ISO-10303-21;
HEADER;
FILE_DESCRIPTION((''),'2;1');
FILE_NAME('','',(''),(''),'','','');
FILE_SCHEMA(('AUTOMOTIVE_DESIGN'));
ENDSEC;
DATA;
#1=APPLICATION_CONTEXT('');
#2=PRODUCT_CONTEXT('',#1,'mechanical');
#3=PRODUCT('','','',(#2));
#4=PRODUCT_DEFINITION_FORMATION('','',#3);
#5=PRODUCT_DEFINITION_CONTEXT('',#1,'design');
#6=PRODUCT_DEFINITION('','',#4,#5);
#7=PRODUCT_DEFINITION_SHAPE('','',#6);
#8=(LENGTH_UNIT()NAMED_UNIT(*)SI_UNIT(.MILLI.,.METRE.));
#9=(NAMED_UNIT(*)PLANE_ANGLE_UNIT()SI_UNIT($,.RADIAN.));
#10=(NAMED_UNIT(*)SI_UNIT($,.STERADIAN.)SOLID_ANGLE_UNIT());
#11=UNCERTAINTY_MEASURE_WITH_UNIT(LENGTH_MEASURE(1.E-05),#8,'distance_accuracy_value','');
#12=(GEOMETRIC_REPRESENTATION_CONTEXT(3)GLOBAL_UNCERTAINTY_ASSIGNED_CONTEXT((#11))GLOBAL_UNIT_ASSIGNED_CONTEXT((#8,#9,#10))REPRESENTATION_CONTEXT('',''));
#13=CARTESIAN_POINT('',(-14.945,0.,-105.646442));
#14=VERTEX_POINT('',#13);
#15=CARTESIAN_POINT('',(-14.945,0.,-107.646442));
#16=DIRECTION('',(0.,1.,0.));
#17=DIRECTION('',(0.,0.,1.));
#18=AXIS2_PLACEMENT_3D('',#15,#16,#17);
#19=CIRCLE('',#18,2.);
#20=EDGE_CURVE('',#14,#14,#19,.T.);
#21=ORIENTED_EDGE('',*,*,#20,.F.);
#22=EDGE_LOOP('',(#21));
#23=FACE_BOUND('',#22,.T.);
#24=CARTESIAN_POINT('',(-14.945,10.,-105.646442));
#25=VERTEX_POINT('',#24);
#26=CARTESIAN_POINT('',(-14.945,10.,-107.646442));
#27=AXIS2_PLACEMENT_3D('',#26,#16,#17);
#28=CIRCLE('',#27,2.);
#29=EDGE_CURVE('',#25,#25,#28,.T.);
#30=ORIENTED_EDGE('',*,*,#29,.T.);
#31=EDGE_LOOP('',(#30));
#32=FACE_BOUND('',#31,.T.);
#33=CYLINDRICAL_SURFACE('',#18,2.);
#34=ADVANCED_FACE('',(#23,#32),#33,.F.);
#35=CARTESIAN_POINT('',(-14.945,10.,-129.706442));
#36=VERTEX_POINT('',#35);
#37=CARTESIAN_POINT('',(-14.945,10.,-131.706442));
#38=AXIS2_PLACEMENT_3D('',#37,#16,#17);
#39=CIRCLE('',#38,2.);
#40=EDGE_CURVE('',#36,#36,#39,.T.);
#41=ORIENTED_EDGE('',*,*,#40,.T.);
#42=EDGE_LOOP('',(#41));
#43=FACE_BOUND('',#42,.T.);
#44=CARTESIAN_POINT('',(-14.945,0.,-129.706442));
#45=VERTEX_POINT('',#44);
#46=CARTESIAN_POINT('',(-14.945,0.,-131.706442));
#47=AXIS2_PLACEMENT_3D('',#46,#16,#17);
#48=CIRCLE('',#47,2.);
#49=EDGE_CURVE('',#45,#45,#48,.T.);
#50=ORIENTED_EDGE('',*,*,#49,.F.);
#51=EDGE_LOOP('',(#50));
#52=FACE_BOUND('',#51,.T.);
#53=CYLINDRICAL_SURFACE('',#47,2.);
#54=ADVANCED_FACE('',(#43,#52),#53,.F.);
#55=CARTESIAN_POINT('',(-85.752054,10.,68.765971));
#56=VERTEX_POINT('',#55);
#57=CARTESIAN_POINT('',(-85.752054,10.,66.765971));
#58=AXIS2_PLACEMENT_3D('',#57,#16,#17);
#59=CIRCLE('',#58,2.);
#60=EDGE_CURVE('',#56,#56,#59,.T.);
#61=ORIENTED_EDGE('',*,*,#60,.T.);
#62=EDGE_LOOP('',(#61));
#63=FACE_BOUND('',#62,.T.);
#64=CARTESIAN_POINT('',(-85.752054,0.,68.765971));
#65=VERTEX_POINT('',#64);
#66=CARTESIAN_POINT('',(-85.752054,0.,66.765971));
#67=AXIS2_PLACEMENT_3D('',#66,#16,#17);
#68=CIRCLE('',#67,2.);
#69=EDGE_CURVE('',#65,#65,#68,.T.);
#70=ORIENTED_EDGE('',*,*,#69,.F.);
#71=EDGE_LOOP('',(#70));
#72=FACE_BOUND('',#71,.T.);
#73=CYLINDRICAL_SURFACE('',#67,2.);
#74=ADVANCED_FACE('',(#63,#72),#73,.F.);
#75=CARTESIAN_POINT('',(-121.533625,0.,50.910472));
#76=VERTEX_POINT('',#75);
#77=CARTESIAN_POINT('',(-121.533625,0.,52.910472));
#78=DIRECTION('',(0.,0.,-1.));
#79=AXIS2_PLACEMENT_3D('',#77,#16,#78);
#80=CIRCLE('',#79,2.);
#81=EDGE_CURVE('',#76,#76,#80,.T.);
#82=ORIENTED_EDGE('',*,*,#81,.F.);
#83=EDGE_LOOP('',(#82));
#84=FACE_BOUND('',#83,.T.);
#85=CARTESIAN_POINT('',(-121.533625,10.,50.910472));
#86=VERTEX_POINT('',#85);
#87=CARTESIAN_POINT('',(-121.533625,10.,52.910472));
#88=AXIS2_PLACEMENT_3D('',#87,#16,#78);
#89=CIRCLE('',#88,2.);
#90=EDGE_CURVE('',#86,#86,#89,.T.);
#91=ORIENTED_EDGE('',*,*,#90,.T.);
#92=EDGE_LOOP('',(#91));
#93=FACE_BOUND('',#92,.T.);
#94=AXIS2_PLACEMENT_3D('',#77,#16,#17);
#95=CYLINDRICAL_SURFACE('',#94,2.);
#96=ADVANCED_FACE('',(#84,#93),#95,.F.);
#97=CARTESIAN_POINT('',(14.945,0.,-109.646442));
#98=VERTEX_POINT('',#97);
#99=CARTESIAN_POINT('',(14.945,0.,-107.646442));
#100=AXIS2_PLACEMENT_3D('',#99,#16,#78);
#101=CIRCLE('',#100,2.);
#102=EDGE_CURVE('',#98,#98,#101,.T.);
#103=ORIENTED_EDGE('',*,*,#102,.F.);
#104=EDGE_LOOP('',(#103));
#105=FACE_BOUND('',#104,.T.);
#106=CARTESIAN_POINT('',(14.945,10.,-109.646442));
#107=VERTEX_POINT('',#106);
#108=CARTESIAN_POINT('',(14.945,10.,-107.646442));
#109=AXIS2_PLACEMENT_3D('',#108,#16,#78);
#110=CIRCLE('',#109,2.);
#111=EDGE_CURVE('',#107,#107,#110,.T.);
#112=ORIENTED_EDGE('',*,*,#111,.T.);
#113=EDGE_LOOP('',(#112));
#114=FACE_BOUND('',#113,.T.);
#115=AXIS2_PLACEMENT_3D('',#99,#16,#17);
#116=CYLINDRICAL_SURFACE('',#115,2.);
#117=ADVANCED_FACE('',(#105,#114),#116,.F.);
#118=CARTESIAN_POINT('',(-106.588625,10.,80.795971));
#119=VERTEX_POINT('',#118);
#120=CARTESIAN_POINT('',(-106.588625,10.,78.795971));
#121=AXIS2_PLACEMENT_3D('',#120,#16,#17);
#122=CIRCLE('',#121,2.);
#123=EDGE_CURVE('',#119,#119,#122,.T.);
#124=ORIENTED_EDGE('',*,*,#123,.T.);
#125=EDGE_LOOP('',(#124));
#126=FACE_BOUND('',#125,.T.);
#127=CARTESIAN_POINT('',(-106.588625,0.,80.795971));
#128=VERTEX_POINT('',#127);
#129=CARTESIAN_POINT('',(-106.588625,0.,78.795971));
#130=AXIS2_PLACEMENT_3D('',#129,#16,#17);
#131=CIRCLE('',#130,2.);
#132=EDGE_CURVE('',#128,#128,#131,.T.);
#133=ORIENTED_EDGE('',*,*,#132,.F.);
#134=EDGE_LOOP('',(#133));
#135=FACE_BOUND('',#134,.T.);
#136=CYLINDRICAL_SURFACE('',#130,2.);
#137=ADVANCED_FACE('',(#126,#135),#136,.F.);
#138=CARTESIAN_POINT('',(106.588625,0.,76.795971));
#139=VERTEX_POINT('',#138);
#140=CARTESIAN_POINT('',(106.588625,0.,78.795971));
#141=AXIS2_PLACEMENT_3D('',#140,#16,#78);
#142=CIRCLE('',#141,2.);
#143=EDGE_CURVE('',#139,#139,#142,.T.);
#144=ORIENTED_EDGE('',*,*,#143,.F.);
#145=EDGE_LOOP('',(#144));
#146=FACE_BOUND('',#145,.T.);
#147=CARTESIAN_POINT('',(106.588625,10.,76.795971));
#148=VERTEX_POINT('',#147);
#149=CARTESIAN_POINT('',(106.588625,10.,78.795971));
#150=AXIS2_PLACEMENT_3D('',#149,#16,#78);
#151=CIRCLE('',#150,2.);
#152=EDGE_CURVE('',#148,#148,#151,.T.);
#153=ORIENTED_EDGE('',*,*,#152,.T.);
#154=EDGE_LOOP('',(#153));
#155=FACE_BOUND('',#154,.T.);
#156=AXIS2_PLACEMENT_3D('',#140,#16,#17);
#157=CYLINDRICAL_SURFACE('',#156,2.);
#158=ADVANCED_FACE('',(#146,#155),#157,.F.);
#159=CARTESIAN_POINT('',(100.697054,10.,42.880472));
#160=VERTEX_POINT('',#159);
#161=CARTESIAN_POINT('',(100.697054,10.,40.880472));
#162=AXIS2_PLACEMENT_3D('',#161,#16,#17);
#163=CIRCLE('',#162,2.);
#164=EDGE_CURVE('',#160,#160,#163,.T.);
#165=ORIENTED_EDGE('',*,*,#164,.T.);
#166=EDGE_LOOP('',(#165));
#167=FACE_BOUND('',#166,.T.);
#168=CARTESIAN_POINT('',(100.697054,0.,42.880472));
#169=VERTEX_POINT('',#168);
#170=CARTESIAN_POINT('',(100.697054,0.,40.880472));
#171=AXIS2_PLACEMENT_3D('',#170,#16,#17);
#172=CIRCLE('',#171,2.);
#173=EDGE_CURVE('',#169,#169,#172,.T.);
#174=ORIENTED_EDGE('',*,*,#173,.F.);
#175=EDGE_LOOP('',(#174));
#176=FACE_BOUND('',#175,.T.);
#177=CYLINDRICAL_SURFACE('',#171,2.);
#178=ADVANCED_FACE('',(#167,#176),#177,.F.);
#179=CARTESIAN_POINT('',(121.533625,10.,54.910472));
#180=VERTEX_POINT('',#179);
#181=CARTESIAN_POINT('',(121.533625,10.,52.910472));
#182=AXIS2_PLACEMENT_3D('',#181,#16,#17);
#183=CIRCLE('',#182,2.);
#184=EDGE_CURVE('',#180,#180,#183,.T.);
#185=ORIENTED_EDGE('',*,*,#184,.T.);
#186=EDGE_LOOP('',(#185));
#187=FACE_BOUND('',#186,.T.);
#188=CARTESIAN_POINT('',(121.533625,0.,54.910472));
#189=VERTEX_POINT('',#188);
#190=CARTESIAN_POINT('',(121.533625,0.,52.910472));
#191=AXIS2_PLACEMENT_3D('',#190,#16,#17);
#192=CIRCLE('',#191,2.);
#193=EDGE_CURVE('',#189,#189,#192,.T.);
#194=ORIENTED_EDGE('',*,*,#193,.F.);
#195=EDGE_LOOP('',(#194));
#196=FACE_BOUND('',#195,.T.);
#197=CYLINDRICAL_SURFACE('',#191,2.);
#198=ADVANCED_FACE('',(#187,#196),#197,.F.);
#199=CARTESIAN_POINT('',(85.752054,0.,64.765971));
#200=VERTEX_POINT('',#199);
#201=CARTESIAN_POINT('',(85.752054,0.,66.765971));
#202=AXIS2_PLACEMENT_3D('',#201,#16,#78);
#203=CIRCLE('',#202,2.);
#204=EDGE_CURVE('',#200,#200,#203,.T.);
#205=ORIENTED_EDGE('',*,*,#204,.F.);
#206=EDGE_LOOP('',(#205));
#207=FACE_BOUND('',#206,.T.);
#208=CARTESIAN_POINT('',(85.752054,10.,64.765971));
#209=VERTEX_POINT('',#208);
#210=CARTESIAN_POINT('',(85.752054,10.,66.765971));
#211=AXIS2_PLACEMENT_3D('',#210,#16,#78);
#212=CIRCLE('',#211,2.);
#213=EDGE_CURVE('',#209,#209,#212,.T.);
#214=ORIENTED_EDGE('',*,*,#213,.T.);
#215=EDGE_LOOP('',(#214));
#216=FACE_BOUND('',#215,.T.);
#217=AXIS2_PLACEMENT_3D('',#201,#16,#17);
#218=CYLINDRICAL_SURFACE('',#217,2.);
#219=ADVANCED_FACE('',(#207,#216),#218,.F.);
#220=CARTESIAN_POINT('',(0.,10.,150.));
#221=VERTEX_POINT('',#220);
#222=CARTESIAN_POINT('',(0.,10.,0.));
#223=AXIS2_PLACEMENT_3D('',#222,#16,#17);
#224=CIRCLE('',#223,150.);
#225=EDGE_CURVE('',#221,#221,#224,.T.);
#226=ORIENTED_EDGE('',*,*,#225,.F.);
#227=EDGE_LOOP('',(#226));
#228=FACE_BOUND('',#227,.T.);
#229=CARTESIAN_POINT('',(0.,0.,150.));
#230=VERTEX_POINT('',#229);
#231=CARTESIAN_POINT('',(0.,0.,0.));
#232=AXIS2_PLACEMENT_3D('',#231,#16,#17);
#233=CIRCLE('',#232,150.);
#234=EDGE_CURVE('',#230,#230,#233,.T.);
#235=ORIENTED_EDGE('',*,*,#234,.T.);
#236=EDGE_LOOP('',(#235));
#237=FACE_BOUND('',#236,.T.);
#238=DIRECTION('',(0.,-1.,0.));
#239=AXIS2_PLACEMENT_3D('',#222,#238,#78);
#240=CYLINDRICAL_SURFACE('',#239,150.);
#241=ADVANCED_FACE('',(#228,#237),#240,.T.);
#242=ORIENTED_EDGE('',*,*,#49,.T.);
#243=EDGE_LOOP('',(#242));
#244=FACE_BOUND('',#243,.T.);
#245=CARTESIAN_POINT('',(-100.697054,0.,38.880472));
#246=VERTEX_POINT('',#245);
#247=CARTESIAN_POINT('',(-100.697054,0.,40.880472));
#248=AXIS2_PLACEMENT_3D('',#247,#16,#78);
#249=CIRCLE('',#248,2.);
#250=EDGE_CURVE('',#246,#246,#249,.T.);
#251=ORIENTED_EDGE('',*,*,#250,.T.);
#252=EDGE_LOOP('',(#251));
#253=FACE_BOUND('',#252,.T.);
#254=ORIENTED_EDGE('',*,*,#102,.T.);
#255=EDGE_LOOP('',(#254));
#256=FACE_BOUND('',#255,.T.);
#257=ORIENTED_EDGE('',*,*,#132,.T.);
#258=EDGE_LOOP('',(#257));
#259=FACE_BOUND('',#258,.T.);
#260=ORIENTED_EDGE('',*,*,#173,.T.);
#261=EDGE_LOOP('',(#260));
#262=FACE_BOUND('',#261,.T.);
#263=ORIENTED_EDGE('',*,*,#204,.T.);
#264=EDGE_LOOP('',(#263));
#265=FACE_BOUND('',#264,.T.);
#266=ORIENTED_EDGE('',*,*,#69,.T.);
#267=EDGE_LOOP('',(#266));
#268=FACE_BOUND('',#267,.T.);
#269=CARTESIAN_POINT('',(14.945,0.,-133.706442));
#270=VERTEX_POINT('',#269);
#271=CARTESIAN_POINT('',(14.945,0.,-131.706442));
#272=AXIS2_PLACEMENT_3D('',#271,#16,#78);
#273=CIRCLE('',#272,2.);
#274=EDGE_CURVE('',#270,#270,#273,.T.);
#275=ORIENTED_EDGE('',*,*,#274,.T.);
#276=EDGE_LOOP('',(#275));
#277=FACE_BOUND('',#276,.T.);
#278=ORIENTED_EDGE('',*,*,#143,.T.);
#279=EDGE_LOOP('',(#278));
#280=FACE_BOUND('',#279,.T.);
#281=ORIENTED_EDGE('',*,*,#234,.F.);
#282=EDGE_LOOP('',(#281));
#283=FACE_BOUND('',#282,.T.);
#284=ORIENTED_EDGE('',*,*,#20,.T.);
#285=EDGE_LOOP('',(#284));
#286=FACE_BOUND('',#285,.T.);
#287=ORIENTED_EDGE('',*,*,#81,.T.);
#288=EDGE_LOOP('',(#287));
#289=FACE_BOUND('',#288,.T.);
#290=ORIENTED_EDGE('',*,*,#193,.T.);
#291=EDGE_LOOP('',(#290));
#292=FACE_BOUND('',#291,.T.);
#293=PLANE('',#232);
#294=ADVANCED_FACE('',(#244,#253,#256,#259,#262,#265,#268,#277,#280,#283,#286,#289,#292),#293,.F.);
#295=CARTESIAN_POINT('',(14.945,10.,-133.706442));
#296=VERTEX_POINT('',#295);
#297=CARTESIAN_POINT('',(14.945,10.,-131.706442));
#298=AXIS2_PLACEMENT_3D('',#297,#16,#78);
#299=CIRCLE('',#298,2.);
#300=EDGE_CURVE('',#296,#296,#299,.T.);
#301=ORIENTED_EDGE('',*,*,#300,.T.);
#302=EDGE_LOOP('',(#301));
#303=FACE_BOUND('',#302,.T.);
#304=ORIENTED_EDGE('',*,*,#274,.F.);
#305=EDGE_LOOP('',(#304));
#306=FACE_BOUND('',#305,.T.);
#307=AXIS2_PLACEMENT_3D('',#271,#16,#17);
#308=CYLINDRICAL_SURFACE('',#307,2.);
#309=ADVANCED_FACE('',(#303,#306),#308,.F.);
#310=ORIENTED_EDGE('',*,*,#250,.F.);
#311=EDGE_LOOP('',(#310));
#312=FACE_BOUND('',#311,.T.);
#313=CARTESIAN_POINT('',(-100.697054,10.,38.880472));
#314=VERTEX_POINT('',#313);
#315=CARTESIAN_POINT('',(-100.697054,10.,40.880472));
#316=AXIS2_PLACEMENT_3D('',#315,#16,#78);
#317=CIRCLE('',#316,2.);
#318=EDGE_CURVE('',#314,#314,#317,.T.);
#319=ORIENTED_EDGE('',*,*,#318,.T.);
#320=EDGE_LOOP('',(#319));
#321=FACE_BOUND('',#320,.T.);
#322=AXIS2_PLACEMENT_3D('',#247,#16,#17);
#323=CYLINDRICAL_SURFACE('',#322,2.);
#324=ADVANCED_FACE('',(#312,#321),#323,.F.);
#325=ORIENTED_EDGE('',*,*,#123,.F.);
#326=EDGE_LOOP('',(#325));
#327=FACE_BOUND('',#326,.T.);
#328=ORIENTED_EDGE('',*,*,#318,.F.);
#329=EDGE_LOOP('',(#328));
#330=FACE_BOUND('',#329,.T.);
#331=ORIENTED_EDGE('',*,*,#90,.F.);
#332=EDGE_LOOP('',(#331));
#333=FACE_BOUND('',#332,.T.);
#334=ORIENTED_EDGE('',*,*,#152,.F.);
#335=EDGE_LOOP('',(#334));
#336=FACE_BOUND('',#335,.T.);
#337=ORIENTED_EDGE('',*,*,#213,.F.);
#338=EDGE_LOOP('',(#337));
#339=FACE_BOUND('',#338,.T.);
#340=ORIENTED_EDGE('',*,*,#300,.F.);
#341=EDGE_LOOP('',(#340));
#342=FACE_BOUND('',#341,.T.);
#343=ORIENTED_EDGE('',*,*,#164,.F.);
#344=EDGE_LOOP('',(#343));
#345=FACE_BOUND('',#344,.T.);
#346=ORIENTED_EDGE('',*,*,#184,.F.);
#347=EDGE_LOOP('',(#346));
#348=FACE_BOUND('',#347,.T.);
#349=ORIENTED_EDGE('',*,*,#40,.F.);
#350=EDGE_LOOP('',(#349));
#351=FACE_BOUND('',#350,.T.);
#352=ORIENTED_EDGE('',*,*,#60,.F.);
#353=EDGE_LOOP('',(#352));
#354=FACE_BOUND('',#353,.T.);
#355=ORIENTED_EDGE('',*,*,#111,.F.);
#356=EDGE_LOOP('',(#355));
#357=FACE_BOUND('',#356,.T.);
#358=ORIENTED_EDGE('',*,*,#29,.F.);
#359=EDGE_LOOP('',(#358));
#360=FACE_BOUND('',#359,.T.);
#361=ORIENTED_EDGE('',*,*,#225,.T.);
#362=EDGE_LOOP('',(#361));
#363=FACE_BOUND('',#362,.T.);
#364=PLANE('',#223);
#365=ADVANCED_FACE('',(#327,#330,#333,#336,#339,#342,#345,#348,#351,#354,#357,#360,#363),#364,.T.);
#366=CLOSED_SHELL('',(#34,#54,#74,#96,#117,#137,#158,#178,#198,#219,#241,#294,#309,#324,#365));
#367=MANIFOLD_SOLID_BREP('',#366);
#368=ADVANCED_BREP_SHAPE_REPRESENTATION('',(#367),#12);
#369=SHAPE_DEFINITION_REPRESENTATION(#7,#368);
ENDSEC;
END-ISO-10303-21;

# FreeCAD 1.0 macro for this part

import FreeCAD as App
import Part
import Sketcher
from FreeCAD import Vector

doc = App.newDocument("Part")
body = doc.addObject("PartDesign::Body", "Body")

sketch1 = body.newObject("Sketcher::SketchObject", "Sketch")
sketch1.AttachmentSupport = (doc.getObject("XZ_Plane"), [""])
sketch1.MapMode = "FlatFace"
sketch1.addGeometry(Part.Circle(Vector(0, 0, 0), Vector(0, 0, 1), 150), False)
sketch1.addConstraint(Sketcher.Constraint("Coincident", 0, 3, -1, 1))
sketch1.addConstraint(Sketcher.Constraint("Diameter", 0, 300.0))
pad1 = body.newObject("PartDesign::Pad", "Pad")
pad1.Profile = sketch1
pad1.Length = 10
pad1.Reversed = True

sketch2 = body.newObject("Sketcher::SketchObject", "Sketch001")
sketch2.AttachmentSupport = (doc.getObject("XZ_Plane"), [""])
sketch2.MapMode = "FlatFace"
sketch2.AttachmentOffset = App.Placement(Vector(0, 0, -10), App.Rotation())
sketch2.addGeometry(Part.Circle(Vector(-14.9, -131.7, 0), Vector(0, 0, 1), 2), False)
sketch2.addGeometry(Part.Circle(Vector(-14.9, -107.6, 0), Vector(0, 0, 1), 2), False)
sketch2.addGeometry(Part.Circle(Vector(14.9, -107.6, 0), Vector(0, 0, 1), 2), False)
sketch2.addGeometry(Part.Circle(Vector(14.9, -131.7, 0), Vector(0, 0, 1), 2), False)
sketch2.addGeometry(Part.Circle(Vector(85.8, 66.8, 0), Vector(0, 0, 1), 2), False)
sketch2.addGeometry(Part.Circle(Vector(100.7, 40.9, 0), Vector(0, 0, 1), 2), False)
sketch2.addGeometry(Part.Circle(Vector(106.6, 78.8, 0), Vector(0, 0, 1), 2), False)
sketch2.addGeometry(Part.Circle(Vector(121.5, 52.9, 0), Vector(0, 0, 1), 2), False)
sketch2.addGeometry(Part.Circle(Vector(-100.7, 40.9, 0), Vector(0, 0, 1), 2), False)
sketch2.addGeometry(Part.Circle(Vector(-85.8, 66.8, 0), Vector(0, 0, 1), 2), False)
sketch2.addGeometry(Part.Circle(Vector(-121.5, 52.9, 0), Vector(0, 0, 1), 2), False)
sketch2.addGeometry(Part.Circle(Vector(-106.6, 78.8, 0), Vector(0, 0, 1), 2), False)
sketch2.addConstraint(Sketcher.Constraint("Equal", 0, 1))
sketch2.addConstraint(Sketcher.Constraint("Equal", 1, 2))
sketch2.addConstraint(Sketcher.Constraint("Equal", 2, 3))
sketch2.addConstraint(Sketcher.Constraint("Equal", 3, 4))
sketch2.addConstraint(Sketcher.Constraint("Equal", 4, 5))
sketch2.addConstraint(Sketcher.Constraint("Equal", 5, 6))
sketch2.addConstraint(Sketcher.Constraint("Equal", 6, 7))
sketch2.addConstraint(Sketcher.Constraint("Equal", 7, 8))
sketch2.addConstraint(Sketcher.Constraint("Equal", 8, 9))
sketch2.addConstraint(Sketcher.Constraint("Equal", 9, 10))
sketch2.addConstraint(Sketcher.Constraint("Equal", 10, 11))
sketch2.addConstraint(Sketcher.Constraint("Symmetric", 1, 3, 2, 3, -2))
sketch2.addConstraint(Sketcher.Constraint("Symmetric", 0, 3, 3, 3, -2))
sketch2.addConstraint(Sketcher.Constraint("Symmetric", 5, 3, 8, 3, -2))
sketch2.addConstraint(Sketcher.Constraint("Symmetric", 4, 3, 9, 3, -2))
sketch2.addConstraint(Sketcher.Constraint("Symmetric", 7, 3, 10, 3, -2))
sketch2.addConstraint(Sketcher.Constraint("Symmetric", 6, 3, 11, 3, -2))
sketch2.addConstraint(Sketcher.Constraint("Vertical", 0, 3, 1, 3))
sketch2.addConstraint(Sketcher.Constraint("Diameter", 0, 4.0))
sketch2.addConstraint(Sketcher.Constraint("DistanceY", 0, 3, 1, 3, 24.06))
sketch2.addConstraint(Sketcher.Constraint("DistanceX", 1, 3, 2, 3, 29.89))
sketch2.addConstraint(Sketcher.Constraint("DistanceY", 4, 3, 6, 3, 12.03))
sketch2.addConstraint(Sketcher.Constraint("DistanceY", 5, 3, 7, 3, 12.03))
sketch2.addConstraint(Sketcher.Constraint("DistanceX", 4, 3, 5, 3, 14.945))
sketch2.addConstraint(Sketcher.Constraint("DistanceX", 6, 3, 7, 3, 14.945))
sketch2.addConstraint(Sketcher.Constraint("DistanceY", 5, 3, 4, 3, 25.885499))
sketch2.addConstraint(Sketcher.Constraint("DistanceY", -1, 1, 4, 3, 66.765971))
sketch2.addConstraint(Sketcher.Constraint("DistanceX", 4, 3, 6, 3, 20.836571))
sketch2.addConstraint(Sketcher.Constraint("DistanceX", 9, 3, 6, 3, 192.340679))
sketch2.addConstraint(Sketcher.Constraint("DistanceY", 0, 3, -1, 1, 131.706442))
pocket1 = body.newObject("PartDesign::Pocket", "Pocket")
pocket1.Profile = sketch2
pocket1.Length = 10
pocket1.Reversed = True

doc.recompute()
